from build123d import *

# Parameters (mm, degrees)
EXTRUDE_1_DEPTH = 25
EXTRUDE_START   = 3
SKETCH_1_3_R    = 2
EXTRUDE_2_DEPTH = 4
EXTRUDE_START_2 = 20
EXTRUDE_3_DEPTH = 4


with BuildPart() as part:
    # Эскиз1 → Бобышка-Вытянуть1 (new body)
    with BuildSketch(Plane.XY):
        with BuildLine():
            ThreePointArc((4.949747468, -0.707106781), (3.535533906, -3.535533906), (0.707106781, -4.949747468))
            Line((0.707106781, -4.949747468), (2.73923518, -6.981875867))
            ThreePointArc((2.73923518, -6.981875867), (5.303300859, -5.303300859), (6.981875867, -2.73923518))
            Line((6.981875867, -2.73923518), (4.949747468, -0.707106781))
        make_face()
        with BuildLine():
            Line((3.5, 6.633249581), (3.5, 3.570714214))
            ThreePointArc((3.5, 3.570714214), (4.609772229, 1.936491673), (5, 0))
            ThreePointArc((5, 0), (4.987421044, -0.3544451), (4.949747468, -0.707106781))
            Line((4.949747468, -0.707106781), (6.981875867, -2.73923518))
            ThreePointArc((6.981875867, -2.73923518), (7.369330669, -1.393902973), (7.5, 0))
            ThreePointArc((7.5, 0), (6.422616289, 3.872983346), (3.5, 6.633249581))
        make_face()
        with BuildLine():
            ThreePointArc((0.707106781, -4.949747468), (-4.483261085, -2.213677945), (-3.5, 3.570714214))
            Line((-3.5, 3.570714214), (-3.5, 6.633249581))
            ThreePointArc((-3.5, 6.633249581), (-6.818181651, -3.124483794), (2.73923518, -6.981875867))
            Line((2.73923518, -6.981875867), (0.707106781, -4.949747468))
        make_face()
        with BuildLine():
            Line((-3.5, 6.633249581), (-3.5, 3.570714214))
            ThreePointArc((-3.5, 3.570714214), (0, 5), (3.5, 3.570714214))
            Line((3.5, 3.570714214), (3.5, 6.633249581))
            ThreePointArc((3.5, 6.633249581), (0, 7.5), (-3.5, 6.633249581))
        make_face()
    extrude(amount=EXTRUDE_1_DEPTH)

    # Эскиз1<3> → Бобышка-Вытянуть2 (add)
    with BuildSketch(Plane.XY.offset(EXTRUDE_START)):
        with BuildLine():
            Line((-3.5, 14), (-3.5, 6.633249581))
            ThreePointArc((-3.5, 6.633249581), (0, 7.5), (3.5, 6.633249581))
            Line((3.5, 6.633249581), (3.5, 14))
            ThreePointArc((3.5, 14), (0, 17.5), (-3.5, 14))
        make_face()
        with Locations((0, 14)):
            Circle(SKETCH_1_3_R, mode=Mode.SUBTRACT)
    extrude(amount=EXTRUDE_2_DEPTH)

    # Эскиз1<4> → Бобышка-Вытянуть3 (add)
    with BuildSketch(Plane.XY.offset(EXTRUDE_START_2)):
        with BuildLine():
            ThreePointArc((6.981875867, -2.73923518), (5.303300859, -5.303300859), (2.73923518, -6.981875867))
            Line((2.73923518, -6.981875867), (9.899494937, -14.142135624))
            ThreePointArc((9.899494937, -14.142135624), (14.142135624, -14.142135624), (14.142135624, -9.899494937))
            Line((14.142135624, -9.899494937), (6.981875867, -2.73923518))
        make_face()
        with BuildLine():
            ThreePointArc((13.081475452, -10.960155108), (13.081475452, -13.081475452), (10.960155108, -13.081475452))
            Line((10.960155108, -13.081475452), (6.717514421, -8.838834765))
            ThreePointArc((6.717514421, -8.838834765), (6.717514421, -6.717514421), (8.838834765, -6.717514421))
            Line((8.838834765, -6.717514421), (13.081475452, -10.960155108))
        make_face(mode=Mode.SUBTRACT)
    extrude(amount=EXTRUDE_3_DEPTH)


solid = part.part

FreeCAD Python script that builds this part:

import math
import FreeCAD as App
import Part
import Sketcher
from FreeCAD import Vector
Q = App.Units.Quantity

doc = App.newDocument("Part")
body = doc.addObject("PartDesign::Body", "Body")

sketch1 = doc.addObject("Sketcher::SketchObject", "Sketch")
body.addObject(sketch1)
sketch1.AttachmentSupport = (doc.XY_Plane, [""])
sketch1.MapMode = "FlatFace"
sketch1.addGeometry([
    Part.ArcOfCircle(Part.Circle(Vector(0, 0, 0), Vector(0, 0, 1), 7.5), math.radians(118), math.radians(291)),
    Part.ArcOfCircle(Part.Circle(Vector(0, 0, 0), Vector(0, 0, 1), 7.5), math.radians(-69), math.radians(-21)),
    Part.ArcOfCircle(Part.Circle(Vector(0, 0, 0), Vector(0, 0, 1), 7.5), math.radians(-21), math.radians(0)),
    Part.ArcOfCircle(Part.Circle(Vector(0, 0, 0), Vector(0, 0, 1), 7.5), math.radians(0), math.radians(62)),
    Part.ArcOfCircle(Part.Circle(Vector(0, 0, 0), Vector(0, 0, 1), 7.5), math.radians(62), math.radians(118)),
    Part.ArcOfCircle(Part.Circle(Vector(0, 0, 0), Vector(0, 0, 1), 5), math.radians(-82), math.radians(-8)),
    Part.ArcOfCircle(Part.Circle(Vector(0, 0, 0), Vector(0, 0, 1), 5), math.radians(134), math.radians(278)),
    Part.ArcOfCircle(Part.Circle(Vector(0, 0, 0), Vector(0, 0, 1), 5), math.radians(46), math.radians(134)),
    Part.ArcOfCircle(Part.Circle(Vector(0, 0, 0), Vector(0, 0, 1), 5), math.radians(0), math.radians(46)),
    Part.ArcOfCircle(Part.Circle(Vector(0, 0, 0), Vector(0, 0, 1), 5), math.radians(-8.13), math.radians(0)),
], False)
sketch1.addConstraint([
    Sketcher.Constraint("Tangent", 0, 2, 1, 1),
    Sketcher.Constraint("Tangent", 1, 2, 2, 1),
    Sketcher.Constraint("Tangent", 2, 2, 3, 1),
    Sketcher.Constraint("Tangent", 3, 2, 4, 1),
    Sketcher.Constraint("Tangent", 4, 2, 0, 1),
    Sketcher.Constraint("Tangent", 5, 1, 6, 2),
    Sketcher.Constraint("Tangent", 6, 1, 7, 2),
    Sketcher.Constraint("Tangent", 7, 1, 8, 2),
    Sketcher.Constraint("Tangent", 8, 1, 9, 2),
    Sketcher.Constraint("Tangent", 9, 1, 5, 2),
    Sketcher.Constraint("Coincident", 0, 3, -1, 1),
    Sketcher.Constraint("Coincident", 2, 3, -1, 1),
    Sketcher.Constraint("Coincident", 5, 3, -1, 1),
    Sketcher.Constraint("Coincident", 7, 3, -1, 1),
    Sketcher.Constraint("PointOnObject", 2, 2, -1),
    Sketcher.Constraint("PointOnObject", 8, 1, -1),
    Sketcher.Constraint("Horizontal", 3, 2, 4, 2),
    Sketcher.Constraint("Horizontal", 6, 1, 7, 1),
    Sketcher.Constraint("Vertical", 4, 2, 6, 1),
    Sketcher.Constraint("Radius", 5, 5.0),
    Sketcher.Constraint("Radius", 0, 7.5),
    Sketcher.Constraint("DistanceX", 4, 2, 3, 2, 7.0),
    Sketcher.Constraint("DistanceX", 0, 2, 1, 2, 4.242641),
    Sketcher.Constraint("DistanceY", 0, 2, 1, 2, 4.242641),
    Sketcher.Constraint("DistanceX", 5, 1, 0, 2, 2.032128),
    Sketcher.Constraint("DistanceX", 9, 1, 1, 2, 2.032128),
])
pad1 = doc.addObject("PartDesign::Pad", "Pad")
body.addObject(pad1)
pad1.Profile = sketch1
pad1.Length = 25

sketch2 = doc.addObject("Sketcher::SketchObject", "Sketch001")
body.addObject(sketch2)
sketch2.AttachmentSupport = (doc.XY_Plane, [""])
sketch2.MapMode = "FlatFace"
sketch2.AttachmentOffset = App.Placement(Vector(0, 0, 3), App.Rotation())
sketch2.addGeometry([
    Part.LineSegment(Vector(-3.5, 14, 0), Vector(-3.5, 6.6, 0)),
    Part.ArcOfCircle(Part.Circle(Vector(0, 0, 0), Vector(0, 0, 1), 7.5), math.radians(62), math.radians(118)),
    Part.LineSegment(Vector(3.5, 6.6, 0), Vector(3.5, 14, 0)),
    Part.ArcOfCircle(Part.Circle(Vector(0, 14, 0), Vector(0, 0, 1), 3.5), math.radians(0), math.radians(180)),
    Part.Circle(Vector(0, 14, 0), Vector(0, 0, 1), 2),
], False)
sketch2.addConstraint([
    Sketcher.Constraint("Coincident", 0, 2, 1, 2),
    Sketcher.Constraint("Coincident", 1, 1, 2, 1),
    Sketcher.Constraint("Tangent", 2, 2, 3, 1),
    Sketcher.Constraint("Tangent", 3, 2, 0, 1),
    Sketcher.Constraint("Vertical", 0),
    Sketcher.Constraint("Vertical", 2),
    Sketcher.Constraint("Coincident", 1, 3, -1, 1),
    Sketcher.Constraint("Coincident", 4, 3, 3, 3),
    Sketcher.Constraint("PointOnObject", 3, 3, -2),
    Sketcher.Constraint("Diameter", 4, 4.0),
    Sketcher.Constraint("Radius", 1, 7.5),
    Sketcher.Constraint("Radius", 3, 3.5),
    Sketcher.Constraint("DistanceY", -1, 1, 3, 3, 14.0),
])
pad2 = doc.addObject("PartDesign::Pad", "Pad001")
body.addObject(pad2)
pad2.Profile = sketch2
pad2.Length = 4

sketch3 = doc.addObject("Sketcher::SketchObject", "Sketch002")
body.addObject(sketch3)
sketch3.AttachmentSupport = (doc.XY_Plane, [""])
sketch3.MapMode = "FlatFace"
sketch3.AttachmentOffset = App.Placement(Vector(0, 0, 20), App.Rotation())
sketch3.addGeometry([
    Part.ArcOfCircle(Part.Circle(Vector(0, 0, 0), Vector(0, 0, 1), 7.5), math.radians(-69), math.radians(-21)),
    Part.LineSegment(Vector(2.7, -7, 0), Vector(9.9, -14.1, 0)),
    Part.ArcOfCircle(Part.Circle(Vector(12, -12, 0), Vector(0, 0, 1), 3), math.radians(-135), math.radians(45)),
    Part.LineSegment(Vector(14.1, -9.9, 0), Vector(7, -2.7, 0)),
    Part.LineSegment(Vector(8.8, -6.7, 0), Vector(13.1, -11, 0)),
    Part.ArcOfCircle(Part.Circle(Vector(12, -12, 0), Vector(0, 0, 1), 1.5), math.radians(-135), math.radians(45)),
    Part.LineSegment(Vector(11, -13.1, 0), Vector(6.7, -8.8, 0)),
    Part.ArcOfCircle(Part.Circle(Vector(7.8, -7.8, 0), Vector(0, 0, 1), 1.5), math.radians(45), math.radians(225)),
], False)
sketch3.addConstraint([
    Sketcher.Constraint("Coincident", 0, 1, 1, 1),
    Sketcher.Constraint("Tangent", 1, 2, 2, 1),
    Sketcher.Constraint("Tangent", 2, 2, 3, 1),
    Sketcher.Constraint("Coincident", 3, 2, 0, 2),
    Sketcher.Constraint("Tangent", 4, 2, 5, 2),
    Sketcher.Constraint("Tangent", 5, 1, 6, 1),
    Sketcher.Constraint("Tangent", 6, 2, 7, 2),
    Sketcher.Constraint("Tangent", 7, 1, 4, 1),
    Sketcher.Constraint("Coincident", 0, 3, -1, 1),
    Sketcher.Constraint("Coincident", 5, 3, 2, 3),
    Sketcher.Constraint("Equal", 5, 7),
    Sketcher.Constraint("Parallel", 1, 3),
    Sketcher.Constraint("Parallel", 3, 4),
    Sketcher.Constraint("Equal", 1, 3),
    Sketcher.Constraint("Radius", 2, 3.0),
    Sketcher.Constraint("Radius", 0, 7.5),
    Sketcher.Constraint("Radius", 5, 1.5),
    Sketcher.Constraint("Angle", 1, Q("-45 deg")),
    Sketcher.Constraint("Distance", 4, 6.0),
    Sketcher.Constraint("DistanceY", 7, 3, 0, 1, 0.796299),
])
pad3 = doc.addObject("PartDesign::Pad", "Pad002")
body.addObject(pad3)
pad3.Profile = sketch3
pad3.Length = 4

doc.recompute()
